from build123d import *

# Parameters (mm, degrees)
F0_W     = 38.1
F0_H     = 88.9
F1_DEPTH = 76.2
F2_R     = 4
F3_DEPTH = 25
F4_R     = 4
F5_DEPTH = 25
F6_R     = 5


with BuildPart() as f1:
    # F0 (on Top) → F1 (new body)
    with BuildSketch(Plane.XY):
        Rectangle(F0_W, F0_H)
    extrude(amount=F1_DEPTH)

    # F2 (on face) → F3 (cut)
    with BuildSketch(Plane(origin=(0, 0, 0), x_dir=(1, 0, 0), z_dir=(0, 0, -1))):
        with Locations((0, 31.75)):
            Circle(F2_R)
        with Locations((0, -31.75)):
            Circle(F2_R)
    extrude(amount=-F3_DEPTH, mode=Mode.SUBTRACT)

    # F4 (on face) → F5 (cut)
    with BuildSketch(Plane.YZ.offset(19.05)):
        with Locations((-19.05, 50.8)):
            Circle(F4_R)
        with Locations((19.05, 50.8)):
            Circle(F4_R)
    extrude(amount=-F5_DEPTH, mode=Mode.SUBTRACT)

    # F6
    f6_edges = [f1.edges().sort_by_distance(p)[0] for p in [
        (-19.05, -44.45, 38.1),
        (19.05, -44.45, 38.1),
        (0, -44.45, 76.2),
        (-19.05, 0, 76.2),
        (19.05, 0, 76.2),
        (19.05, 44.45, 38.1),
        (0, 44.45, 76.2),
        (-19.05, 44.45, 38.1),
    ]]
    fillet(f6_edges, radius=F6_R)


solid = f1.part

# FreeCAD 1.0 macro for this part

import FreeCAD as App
import Part
import Sketcher
Q = App.Units.Quantity


def edges_at(feature, points):
    """Names of the edges that pass closest to the given points."""
    edges = feature.Shape.Edges
    near = lambda p: min(range(len(edges)), key=lambda i: edges[i].distToShape(Part.Vertex(*p))[0])
    return sorted({f"Edge{near(p) + 1}" for p in points})


def add_polygon(sketch, points):
    """Adds a closed chain of lines whose ends are joined by coincident constraints."""
    first, n = sketch.GeometryCount, len(points)
    for a, b in zip(points, points[1:] + points[:1]):
        sketch.addGeometry(Part.LineSegment(App.Vector(*a, 0), App.Vector(*b, 0)), False)
    for i in range(n):
        sketch.addConstraint(Sketcher.Constraint("Coincident", first + i, 2, first + (i + 1) % n, 1))

doc = App.newDocument("Part")
body = doc.addObject("PartDesign::Body", "Body")

sketch1 = doc.addObject("Sketcher::SketchObject", "Sketch")
body.addObject(sketch1)
sketch1.AttachmentSupport = (doc.XY_Plane, [""])
sketch1.MapMode = "FlatFace"
add_polygon(sketch1, [(-19.05, 44.45), (-19.05, -44.45), (19.05, -44.45), (19.05, 44.45)])
sketch1.addConstraint([
    Sketcher.Constraint("Vertical", 0),
    Sketcher.Constraint("Horizontal", 1),
    Sketcher.Constraint("Vertical", 2),
    Sketcher.Constraint("Horizontal", 3),
    Sketcher.Constraint("Symmetric", 0, 2, 2, 2, -1, 1),
    Sketcher.Constraint("DistanceX", 1, 1, 1, 2, Q("38.1 mm")),
    Sketcher.Constraint("DistanceY", 0, 2, 0, 1, Q("88.9 mm")),
])
pad1 = doc.addObject("PartDesign::Pad", "Pad")
body.addObject(pad1)
pad1.Profile = sketch1
pad1.Length = 76.2

sketch2 = doc.addObject("Sketcher::SketchObject", "Sketch001")
body.addObject(sketch2)
sketch2.AttachmentSupport = (doc.XY_Plane, [""])
sketch2.MapMode = "FlatFace"
sketch2.addGeometry([
    Part.Circle(App.Vector(0, -31.75, 0), App.Vector(0, 0, 1), 4),
    Part.Circle(App.Vector(0, 31.75, 0), App.Vector(0, 0, 1), 4),
], False)
sketch2.addConstraint([
    Sketcher.Constraint("Equal", 0, 1),
    Sketcher.Constraint("Symmetric", 0, 3, 1, 3, -1, 1),
    Sketcher.Constraint("PointOnObject", 0, 3, -2),
    Sketcher.Constraint("Diameter", 0, Q("8 mm")),
    Sketcher.Constraint("DistanceY", 0, 3, 1, 3, Q("63.5 mm")),
])
pocket1 = doc.addObject("PartDesign::Pocket", "Pocket")
body.addObject(pocket1)
pocket1.Profile = sketch2
pocket1.Length = 25
pocket1.Reversed = True

sketch3 = doc.addObject("Sketcher::SketchObject", "Sketch002")
body.addObject(sketch3)
sketch3.AttachmentSupport = (doc.YZ_Plane, [""])
sketch3.MapMode = "FlatFace"
sketch3.AttachmentOffset = App.Placement(App.Vector(0, 0, 19.05), App.Rotation())
sketch3.addGeometry([
    Part.Circle(App.Vector(-19.05, 50.8, 0), App.Vector(0, 0, 1), 4),
    Part.Circle(App.Vector(19.05, 50.8, 0), App.Vector(0, 0, 1), 4),
], False)
sketch3.addConstraint([
    Sketcher.Constraint("Equal", 0, 1),
    Sketcher.Constraint("Symmetric", 0, 3, 1, 3, -2),
    Sketcher.Constraint("Diameter", 0, Q("8 mm")),
    Sketcher.Constraint("DistanceY", -1, 1, 0, 3, Q("50.8 mm")),
    Sketcher.Constraint("DistanceX", 0, 3, 1, 3, Q("38.1 mm")),
])
pocket2 = doc.addObject("PartDesign::Pocket", "Pocket001")
body.addObject(pocket2)
pocket2.Profile = sketch3
pocket2.Length = 25
doc.recompute()

fillet = doc.addObject("PartDesign::Fillet", "Fillet")
body.addObject(fillet)
fillet.Base = (pocket2, edges_at(pocket2, [
    (-19.05, -44.45, 38.1),
    (19.05, -44.45, 38.1),
    (0, -44.45, 76.2),
    (-19.05, 0, 76.2),
    (19.05, 0, 76.2),
    (19.05, 44.45, 38.1),
    (0, 44.45, 76.2),
    (-19.05, 44.45, 38.1),
]))
fillet.Radius = 5

doc.recompute()
